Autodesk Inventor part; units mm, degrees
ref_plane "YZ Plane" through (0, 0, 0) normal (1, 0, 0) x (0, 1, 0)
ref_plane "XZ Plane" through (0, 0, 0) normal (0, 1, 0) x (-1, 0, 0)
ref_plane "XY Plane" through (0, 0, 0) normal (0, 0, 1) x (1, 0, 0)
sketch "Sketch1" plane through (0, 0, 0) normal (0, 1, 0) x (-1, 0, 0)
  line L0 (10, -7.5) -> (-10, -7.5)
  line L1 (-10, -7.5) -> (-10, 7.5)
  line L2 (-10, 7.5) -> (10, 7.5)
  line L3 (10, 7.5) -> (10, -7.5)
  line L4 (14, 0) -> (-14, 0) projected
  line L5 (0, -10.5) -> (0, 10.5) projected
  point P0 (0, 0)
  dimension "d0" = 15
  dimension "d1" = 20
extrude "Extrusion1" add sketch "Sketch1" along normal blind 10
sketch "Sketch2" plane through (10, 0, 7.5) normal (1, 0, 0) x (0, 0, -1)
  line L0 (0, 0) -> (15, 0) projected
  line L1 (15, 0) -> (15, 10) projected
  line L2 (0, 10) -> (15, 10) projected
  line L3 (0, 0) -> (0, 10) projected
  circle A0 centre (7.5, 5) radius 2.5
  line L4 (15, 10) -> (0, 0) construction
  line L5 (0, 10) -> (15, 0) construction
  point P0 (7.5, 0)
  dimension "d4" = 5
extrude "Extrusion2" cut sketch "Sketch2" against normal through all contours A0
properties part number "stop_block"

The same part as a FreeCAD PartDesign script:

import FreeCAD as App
import Part
import Sketcher

V = App.Vector

doc = App.newDocument("Part")
body = doc.addObject("PartDesign::Body", "Body")

# Sketch on XZ plane
sketch1 = doc.addObject("Sketcher::SketchObject", "Sketch")
body.addObject(sketch1)
sketch1.AttachmentSupport = (doc.XZ_Plane, [""])
sketch1.MapMode = "FlatFace"
sketch1.addGeometry([
    Part.LineSegment(V(-10, -7.5, 0), V(-10, 7.5, 0)),
    Part.LineSegment(V(-10, 7.5, 0), V(10, 7.5, 0)),
    Part.LineSegment(V(10, 7.5, 0), V(10, -7.5, 0)),
    Part.LineSegment(V(10, -7.5, 0), V(-10, -7.5, 0)),
], False)
sketch1.addConstraint([
    Sketcher.Constraint("Coincident", 0, 2, 1, 1),
    Sketcher.Constraint("Coincident", 1, 2, 2, 1),
    Sketcher.Constraint("Coincident", 2, 2, 3, 1),
    Sketcher.Constraint("Coincident", 3, 2, 0, 1),
    Sketcher.Constraint("Vertical", 0),
    Sketcher.Constraint("Horizontal", 1),
    Sketcher.Constraint("Vertical", 2),
    Sketcher.Constraint("Horizontal", 3),
    Sketcher.Constraint("Symmetric", 0, 2, 2, 2, -1, 1),
    Sketcher.Constraint("DistanceX", 1, 1, 1, 2, 20.0),
    Sketcher.Constraint("DistanceY", 0, 1, 0, 2, 15.0),
])
pad1 = doc.addObject("PartDesign::Pad", "Pad")
body.addObject(pad1)
pad1.Profile = sketch1
pad1.Length = 10
pad1.Reversed = True

# Sketch on YZ plane
sketch2 = doc.addObject("Sketcher::SketchObject", "Sketch001")
body.addObject(sketch2)
sketch2.AttachmentSupport = (doc.YZ_Plane, [""])
sketch2.MapMode = "FlatFace"
sketch2.AttachmentOffset = App.Placement(V(0, 0, 10), App.Rotation())
sketch2.addGeometry(Part.Circle(V(5, 0, 0), V(0, 0, 1), 2.5), False)
sketch2.addConstraint([
    Sketcher.Constraint("PointOnObject", 0, 3, -1),
    Sketcher.Constraint("Diameter", 0, 5.0),
    Sketcher.Constraint("DistanceX", -1, 1, 0, 3, 5.0),
])
pocket1 = doc.addObject("PartDesign::Pocket", "Pocket")
body.addObject(pocket1)
pocket1.Profile = sketch2
pocket1.Type = "ThroughAll"

doc.recompute()
